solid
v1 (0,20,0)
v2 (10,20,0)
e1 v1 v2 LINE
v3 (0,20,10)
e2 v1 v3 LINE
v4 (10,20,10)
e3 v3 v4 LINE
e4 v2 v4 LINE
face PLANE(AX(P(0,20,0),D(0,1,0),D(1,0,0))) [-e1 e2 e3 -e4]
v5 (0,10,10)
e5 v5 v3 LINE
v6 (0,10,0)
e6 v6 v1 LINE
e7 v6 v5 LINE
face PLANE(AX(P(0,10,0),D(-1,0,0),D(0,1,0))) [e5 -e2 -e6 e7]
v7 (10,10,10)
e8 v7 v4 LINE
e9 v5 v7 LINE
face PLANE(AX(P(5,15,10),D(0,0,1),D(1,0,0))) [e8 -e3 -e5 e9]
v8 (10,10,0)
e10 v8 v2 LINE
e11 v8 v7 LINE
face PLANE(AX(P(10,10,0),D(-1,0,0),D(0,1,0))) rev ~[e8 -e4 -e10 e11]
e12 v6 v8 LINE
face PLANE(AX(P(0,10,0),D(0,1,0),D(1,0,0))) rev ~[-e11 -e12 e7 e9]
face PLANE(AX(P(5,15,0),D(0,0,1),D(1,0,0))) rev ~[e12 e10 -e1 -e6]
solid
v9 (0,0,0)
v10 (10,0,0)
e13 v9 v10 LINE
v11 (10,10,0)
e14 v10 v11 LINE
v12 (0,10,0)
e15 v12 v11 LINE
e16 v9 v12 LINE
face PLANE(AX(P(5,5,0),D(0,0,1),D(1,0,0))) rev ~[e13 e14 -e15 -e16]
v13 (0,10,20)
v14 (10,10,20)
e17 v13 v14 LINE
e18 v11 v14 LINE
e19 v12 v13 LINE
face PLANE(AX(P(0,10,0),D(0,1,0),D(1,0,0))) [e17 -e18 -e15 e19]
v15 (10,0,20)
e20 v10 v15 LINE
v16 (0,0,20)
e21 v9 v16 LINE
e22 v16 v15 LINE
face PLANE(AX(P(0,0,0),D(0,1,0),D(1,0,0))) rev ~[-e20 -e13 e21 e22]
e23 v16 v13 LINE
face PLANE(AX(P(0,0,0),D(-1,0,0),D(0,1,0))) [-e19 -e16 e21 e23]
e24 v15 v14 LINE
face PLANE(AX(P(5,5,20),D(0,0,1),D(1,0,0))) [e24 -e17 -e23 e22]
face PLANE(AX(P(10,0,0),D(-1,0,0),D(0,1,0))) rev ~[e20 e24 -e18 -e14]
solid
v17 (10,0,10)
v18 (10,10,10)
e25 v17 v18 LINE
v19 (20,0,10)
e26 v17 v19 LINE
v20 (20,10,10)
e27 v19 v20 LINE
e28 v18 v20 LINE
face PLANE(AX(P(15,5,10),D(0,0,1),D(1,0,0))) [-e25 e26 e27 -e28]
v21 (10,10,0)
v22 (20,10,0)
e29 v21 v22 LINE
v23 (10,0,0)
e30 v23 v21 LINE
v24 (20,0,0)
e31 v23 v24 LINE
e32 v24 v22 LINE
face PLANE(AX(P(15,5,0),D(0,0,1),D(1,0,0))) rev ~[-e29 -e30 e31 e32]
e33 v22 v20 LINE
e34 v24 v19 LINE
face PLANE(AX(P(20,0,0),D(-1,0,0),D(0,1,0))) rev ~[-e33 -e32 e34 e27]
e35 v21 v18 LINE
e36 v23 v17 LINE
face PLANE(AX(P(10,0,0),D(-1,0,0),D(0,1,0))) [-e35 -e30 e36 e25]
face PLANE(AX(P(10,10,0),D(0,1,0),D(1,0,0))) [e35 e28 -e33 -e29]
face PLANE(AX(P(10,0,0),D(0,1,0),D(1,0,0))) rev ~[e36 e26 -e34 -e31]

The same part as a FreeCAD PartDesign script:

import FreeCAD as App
import Part
import Sketcher
from FreeCAD import Vector

doc = App.newDocument("Part")
body = doc.addObject("PartDesign::Body", "Body")

# Sketch on XY plane
sketch1 = body.newObject("Sketcher::SketchObject", "Sketch")
sketch1.AttachmentSupport = (doc.getObject("XY_Plane"), [""])
sketch1.MapMode = "FlatFace"
sketch1.addGeometry([
    Part.LineSegment(Vector(0, 10, 0), Vector(0, 0, 0)),
    Part.LineSegment(Vector(0, 0, 0), Vector(10, 0, 0)),
    Part.LineSegment(Vector(10, 0, 0), Vector(10, 10, 0)),
    Part.LineSegment(Vector(10, 10, 0), Vector(0, 10, 0)),
], False)
sketch1.addConstraint([
    Sketcher.Constraint("Coincident", 0, 2, 1, 1),
    Sketcher.Constraint("Coincident", 1, 2, 2, 1),
    Sketcher.Constraint("Coincident", 2, 2, 3, 1),
    Sketcher.Constraint("Coincident", 3, 2, 0, 1),
    Sketcher.Constraint("Vertical", 0),
    Sketcher.Constraint("Horizontal", 1),
    Sketcher.Constraint("Vertical", 2),
    Sketcher.Constraint("Horizontal", 3),
    Sketcher.Constraint("Coincident", 0, 2, -1, 1),
    Sketcher.Constraint("Equal", 3, 0),
    Sketcher.Constraint("DistanceX", 1, 1, 1, 2, 10.0),
])
pad1 = body.newObject("PartDesign::Pad", "Pad")
pad1.Profile = sketch1
pad1.Length = 20
body2 = doc.addObject("PartDesign::Body", "Body001")

# Sketch on XY plane
sketch2 = body2.newObject("Sketcher::SketchObject", "Sketch001")
sketch2.AttachmentSupport = (doc.getObject("XY_Plane001"), [""])
sketch2.MapMode = "FlatFace"
sketch2.addGeometry([
    Part.LineSegment(Vector(0, 20, 0), Vector(0, 10, 0)),
    Part.LineSegment(Vector(0, 10, 0), Vector(10, 10, 0)),
    Part.LineSegment(Vector(10, 10, 0), Vector(10, 20, 0)),
    Part.LineSegment(Vector(10, 20, 0), Vector(0, 20, 0)),
], False)
sketch2.addConstraint([
    Sketcher.Constraint("Coincident", 0, 2, 1, 1),
    Sketcher.Constraint("Coincident", 1, 2, 2, 1),
    Sketcher.Constraint("Coincident", 2, 2, 3, 1),
    Sketcher.Constraint("Coincident", 3, 2, 0, 1),
    Sketcher.Constraint("Vertical", 0),
    Sketcher.Constraint("Horizontal", 1),
    Sketcher.Constraint("Vertical", 2),
    Sketcher.Constraint("Horizontal", 3),
    Sketcher.Constraint("PointOnObject", 0, 2, -2),
    Sketcher.Constraint("Equal", 3, 0),
    Sketcher.Constraint("DistanceX", 1, 1, 1, 2, 10.0),
    Sketcher.Constraint("DistanceY", -1, 1, 0, 2, 10.0),
])
pad2 = body2.newObject("PartDesign::Pad", "Pad001")
pad2.Profile = sketch2
pad2.Length = 10
body3 = doc.addObject("PartDesign::Body", "Body002")

# Sketch on XY plane
sketch3 = body3.newObject("Sketcher::SketchObject", "Sketch002")
sketch3.AttachmentSupport = (doc.getObject("XY_Plane002"), [""])
sketch3.MapMode = "FlatFace"
sketch3.addGeometry([
    Part.LineSegment(Vector(10, 10, 0), Vector(10, 0, 0)),
    Part.LineSegment(Vector(10, 0, 0), Vector(20, 0, 0)),
    Part.LineSegment(Vector(20, 0, 0), Vector(20, 10, 0)),
    Part.LineSegment(Vector(20, 10, 0), Vector(10, 10, 0)),
], False)
sketch3.addConstraint([
    Sketcher.Constraint("Coincident", 0, 2, 1, 1),
    Sketcher.Constraint("Coincident", 1, 2, 2, 1),
    Sketcher.Constraint("Coincident", 2, 2, 3, 1),
    Sketcher.Constraint("Coincident", 3, 2, 0, 1),
    Sketcher.Constraint("Vertical", 0),
    Sketcher.Constraint("Horizontal", 1),
    Sketcher.Constraint("Vertical", 2),
    Sketcher.Constraint("Horizontal", 3),
    Sketcher.Constraint("PointOnObject", 0, 2, -1),
    Sketcher.Constraint("Equal", 3, 0),
    Sketcher.Constraint("DistanceX", 1, 1, 1, 2, 10.0),
    Sketcher.Constraint("DistanceX", -1, 1, 0, 2, 10.0),
])
pad3 = body3.newObject("PartDesign::Pad", "Pad002")
pad3.Profile = sketch3
pad3.Length = 10

doc.recompute()
